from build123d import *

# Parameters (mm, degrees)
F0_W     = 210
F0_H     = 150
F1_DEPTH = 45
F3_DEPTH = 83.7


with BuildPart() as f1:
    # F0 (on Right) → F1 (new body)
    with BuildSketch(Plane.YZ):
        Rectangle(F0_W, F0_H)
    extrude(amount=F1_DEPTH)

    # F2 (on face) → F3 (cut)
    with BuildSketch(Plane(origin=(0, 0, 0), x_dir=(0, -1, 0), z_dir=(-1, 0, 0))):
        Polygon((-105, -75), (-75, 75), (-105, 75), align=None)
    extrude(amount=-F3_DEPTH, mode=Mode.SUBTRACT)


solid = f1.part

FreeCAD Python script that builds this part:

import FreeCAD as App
import Part
import Sketcher
from FreeCAD import Vector


def add_polygon(sketch, points):
    """Adds a closed chain of lines whose ends are joined by coincident constraints."""
    first, n = sketch.GeometryCount, len(points)
    for a, b in zip(points, points[1:] + points[:1]):
        sketch.addGeometry(Part.LineSegment(App.Vector(*a, 0), App.Vector(*b, 0)), False)
    for i in range(n):
        sketch.addConstraint(Sketcher.Constraint("Coincident", first + i, 2, first + (i + 1) % n, 1))

doc = App.newDocument("Part")
body = doc.addObject("PartDesign::Body", "Body")

# Sketch on YZ plane
sketch1 = body.newObject("Sketcher::SketchObject", "Sketch")
sketch1.AttachmentSupport = (doc.getObject("YZ_Plane"), [""])
sketch1.MapMode = "FlatFace"
add_polygon(sketch1, [(-105, 75), (-105, -75), (105, -75), (105, 75)])  # lines 0-3
sketch1.addConstraint([
    Sketcher.Constraint("Vertical", 0),
    Sketcher.Constraint("Horizontal", 1),
    Sketcher.Constraint("Vertical", 2),
    Sketcher.Constraint("Horizontal", 3),
    Sketcher.Constraint("Symmetric", 0, 2, 2, 2, -1, 1),
    Sketcher.Constraint("DistanceX", 1, 1, 1, 2, 210.0),
    Sketcher.Constraint("DistanceY", 0, 2, 0, 1, 150.0),
])
pad1 = body.newObject("PartDesign::Pad", "Pad")
pad1.Profile = sketch1
pad1.Length = 45

# Sketch on YZ plane
sketch2 = body.newObject("Sketcher::SketchObject", "Sketch001")
sketch2.AttachmentSupport = (doc.getObject("YZ_Plane"), [""])
sketch2.MapMode = "FlatFace"
add_polygon(sketch2, [(105, -75), (75, 75), (105, 75)])  # lines 0-2
sketch2.addConstraint([
    Sketcher.Constraint("Horizontal", 1),
    Sketcher.Constraint("Vertical", 2),
    Sketcher.Constraint("DistanceX", 1, 1, 1, 2, 30.0),
    Sketcher.Constraint("DistanceY", 2, 2, 2, 1, 150.0),
    Sketcher.Constraint("DistanceX", -1, 1, 0, 2, 75.0),
    Sketcher.Constraint("DistanceY", -1, 1, 0, 2, 75.0),
])
pocket1 = body.newObject("PartDesign::Pocket", "Pocket")
pocket1.Profile = sketch2
pocket1.Length = 83.7
pocket1.Reversed = True

doc.recompute()
